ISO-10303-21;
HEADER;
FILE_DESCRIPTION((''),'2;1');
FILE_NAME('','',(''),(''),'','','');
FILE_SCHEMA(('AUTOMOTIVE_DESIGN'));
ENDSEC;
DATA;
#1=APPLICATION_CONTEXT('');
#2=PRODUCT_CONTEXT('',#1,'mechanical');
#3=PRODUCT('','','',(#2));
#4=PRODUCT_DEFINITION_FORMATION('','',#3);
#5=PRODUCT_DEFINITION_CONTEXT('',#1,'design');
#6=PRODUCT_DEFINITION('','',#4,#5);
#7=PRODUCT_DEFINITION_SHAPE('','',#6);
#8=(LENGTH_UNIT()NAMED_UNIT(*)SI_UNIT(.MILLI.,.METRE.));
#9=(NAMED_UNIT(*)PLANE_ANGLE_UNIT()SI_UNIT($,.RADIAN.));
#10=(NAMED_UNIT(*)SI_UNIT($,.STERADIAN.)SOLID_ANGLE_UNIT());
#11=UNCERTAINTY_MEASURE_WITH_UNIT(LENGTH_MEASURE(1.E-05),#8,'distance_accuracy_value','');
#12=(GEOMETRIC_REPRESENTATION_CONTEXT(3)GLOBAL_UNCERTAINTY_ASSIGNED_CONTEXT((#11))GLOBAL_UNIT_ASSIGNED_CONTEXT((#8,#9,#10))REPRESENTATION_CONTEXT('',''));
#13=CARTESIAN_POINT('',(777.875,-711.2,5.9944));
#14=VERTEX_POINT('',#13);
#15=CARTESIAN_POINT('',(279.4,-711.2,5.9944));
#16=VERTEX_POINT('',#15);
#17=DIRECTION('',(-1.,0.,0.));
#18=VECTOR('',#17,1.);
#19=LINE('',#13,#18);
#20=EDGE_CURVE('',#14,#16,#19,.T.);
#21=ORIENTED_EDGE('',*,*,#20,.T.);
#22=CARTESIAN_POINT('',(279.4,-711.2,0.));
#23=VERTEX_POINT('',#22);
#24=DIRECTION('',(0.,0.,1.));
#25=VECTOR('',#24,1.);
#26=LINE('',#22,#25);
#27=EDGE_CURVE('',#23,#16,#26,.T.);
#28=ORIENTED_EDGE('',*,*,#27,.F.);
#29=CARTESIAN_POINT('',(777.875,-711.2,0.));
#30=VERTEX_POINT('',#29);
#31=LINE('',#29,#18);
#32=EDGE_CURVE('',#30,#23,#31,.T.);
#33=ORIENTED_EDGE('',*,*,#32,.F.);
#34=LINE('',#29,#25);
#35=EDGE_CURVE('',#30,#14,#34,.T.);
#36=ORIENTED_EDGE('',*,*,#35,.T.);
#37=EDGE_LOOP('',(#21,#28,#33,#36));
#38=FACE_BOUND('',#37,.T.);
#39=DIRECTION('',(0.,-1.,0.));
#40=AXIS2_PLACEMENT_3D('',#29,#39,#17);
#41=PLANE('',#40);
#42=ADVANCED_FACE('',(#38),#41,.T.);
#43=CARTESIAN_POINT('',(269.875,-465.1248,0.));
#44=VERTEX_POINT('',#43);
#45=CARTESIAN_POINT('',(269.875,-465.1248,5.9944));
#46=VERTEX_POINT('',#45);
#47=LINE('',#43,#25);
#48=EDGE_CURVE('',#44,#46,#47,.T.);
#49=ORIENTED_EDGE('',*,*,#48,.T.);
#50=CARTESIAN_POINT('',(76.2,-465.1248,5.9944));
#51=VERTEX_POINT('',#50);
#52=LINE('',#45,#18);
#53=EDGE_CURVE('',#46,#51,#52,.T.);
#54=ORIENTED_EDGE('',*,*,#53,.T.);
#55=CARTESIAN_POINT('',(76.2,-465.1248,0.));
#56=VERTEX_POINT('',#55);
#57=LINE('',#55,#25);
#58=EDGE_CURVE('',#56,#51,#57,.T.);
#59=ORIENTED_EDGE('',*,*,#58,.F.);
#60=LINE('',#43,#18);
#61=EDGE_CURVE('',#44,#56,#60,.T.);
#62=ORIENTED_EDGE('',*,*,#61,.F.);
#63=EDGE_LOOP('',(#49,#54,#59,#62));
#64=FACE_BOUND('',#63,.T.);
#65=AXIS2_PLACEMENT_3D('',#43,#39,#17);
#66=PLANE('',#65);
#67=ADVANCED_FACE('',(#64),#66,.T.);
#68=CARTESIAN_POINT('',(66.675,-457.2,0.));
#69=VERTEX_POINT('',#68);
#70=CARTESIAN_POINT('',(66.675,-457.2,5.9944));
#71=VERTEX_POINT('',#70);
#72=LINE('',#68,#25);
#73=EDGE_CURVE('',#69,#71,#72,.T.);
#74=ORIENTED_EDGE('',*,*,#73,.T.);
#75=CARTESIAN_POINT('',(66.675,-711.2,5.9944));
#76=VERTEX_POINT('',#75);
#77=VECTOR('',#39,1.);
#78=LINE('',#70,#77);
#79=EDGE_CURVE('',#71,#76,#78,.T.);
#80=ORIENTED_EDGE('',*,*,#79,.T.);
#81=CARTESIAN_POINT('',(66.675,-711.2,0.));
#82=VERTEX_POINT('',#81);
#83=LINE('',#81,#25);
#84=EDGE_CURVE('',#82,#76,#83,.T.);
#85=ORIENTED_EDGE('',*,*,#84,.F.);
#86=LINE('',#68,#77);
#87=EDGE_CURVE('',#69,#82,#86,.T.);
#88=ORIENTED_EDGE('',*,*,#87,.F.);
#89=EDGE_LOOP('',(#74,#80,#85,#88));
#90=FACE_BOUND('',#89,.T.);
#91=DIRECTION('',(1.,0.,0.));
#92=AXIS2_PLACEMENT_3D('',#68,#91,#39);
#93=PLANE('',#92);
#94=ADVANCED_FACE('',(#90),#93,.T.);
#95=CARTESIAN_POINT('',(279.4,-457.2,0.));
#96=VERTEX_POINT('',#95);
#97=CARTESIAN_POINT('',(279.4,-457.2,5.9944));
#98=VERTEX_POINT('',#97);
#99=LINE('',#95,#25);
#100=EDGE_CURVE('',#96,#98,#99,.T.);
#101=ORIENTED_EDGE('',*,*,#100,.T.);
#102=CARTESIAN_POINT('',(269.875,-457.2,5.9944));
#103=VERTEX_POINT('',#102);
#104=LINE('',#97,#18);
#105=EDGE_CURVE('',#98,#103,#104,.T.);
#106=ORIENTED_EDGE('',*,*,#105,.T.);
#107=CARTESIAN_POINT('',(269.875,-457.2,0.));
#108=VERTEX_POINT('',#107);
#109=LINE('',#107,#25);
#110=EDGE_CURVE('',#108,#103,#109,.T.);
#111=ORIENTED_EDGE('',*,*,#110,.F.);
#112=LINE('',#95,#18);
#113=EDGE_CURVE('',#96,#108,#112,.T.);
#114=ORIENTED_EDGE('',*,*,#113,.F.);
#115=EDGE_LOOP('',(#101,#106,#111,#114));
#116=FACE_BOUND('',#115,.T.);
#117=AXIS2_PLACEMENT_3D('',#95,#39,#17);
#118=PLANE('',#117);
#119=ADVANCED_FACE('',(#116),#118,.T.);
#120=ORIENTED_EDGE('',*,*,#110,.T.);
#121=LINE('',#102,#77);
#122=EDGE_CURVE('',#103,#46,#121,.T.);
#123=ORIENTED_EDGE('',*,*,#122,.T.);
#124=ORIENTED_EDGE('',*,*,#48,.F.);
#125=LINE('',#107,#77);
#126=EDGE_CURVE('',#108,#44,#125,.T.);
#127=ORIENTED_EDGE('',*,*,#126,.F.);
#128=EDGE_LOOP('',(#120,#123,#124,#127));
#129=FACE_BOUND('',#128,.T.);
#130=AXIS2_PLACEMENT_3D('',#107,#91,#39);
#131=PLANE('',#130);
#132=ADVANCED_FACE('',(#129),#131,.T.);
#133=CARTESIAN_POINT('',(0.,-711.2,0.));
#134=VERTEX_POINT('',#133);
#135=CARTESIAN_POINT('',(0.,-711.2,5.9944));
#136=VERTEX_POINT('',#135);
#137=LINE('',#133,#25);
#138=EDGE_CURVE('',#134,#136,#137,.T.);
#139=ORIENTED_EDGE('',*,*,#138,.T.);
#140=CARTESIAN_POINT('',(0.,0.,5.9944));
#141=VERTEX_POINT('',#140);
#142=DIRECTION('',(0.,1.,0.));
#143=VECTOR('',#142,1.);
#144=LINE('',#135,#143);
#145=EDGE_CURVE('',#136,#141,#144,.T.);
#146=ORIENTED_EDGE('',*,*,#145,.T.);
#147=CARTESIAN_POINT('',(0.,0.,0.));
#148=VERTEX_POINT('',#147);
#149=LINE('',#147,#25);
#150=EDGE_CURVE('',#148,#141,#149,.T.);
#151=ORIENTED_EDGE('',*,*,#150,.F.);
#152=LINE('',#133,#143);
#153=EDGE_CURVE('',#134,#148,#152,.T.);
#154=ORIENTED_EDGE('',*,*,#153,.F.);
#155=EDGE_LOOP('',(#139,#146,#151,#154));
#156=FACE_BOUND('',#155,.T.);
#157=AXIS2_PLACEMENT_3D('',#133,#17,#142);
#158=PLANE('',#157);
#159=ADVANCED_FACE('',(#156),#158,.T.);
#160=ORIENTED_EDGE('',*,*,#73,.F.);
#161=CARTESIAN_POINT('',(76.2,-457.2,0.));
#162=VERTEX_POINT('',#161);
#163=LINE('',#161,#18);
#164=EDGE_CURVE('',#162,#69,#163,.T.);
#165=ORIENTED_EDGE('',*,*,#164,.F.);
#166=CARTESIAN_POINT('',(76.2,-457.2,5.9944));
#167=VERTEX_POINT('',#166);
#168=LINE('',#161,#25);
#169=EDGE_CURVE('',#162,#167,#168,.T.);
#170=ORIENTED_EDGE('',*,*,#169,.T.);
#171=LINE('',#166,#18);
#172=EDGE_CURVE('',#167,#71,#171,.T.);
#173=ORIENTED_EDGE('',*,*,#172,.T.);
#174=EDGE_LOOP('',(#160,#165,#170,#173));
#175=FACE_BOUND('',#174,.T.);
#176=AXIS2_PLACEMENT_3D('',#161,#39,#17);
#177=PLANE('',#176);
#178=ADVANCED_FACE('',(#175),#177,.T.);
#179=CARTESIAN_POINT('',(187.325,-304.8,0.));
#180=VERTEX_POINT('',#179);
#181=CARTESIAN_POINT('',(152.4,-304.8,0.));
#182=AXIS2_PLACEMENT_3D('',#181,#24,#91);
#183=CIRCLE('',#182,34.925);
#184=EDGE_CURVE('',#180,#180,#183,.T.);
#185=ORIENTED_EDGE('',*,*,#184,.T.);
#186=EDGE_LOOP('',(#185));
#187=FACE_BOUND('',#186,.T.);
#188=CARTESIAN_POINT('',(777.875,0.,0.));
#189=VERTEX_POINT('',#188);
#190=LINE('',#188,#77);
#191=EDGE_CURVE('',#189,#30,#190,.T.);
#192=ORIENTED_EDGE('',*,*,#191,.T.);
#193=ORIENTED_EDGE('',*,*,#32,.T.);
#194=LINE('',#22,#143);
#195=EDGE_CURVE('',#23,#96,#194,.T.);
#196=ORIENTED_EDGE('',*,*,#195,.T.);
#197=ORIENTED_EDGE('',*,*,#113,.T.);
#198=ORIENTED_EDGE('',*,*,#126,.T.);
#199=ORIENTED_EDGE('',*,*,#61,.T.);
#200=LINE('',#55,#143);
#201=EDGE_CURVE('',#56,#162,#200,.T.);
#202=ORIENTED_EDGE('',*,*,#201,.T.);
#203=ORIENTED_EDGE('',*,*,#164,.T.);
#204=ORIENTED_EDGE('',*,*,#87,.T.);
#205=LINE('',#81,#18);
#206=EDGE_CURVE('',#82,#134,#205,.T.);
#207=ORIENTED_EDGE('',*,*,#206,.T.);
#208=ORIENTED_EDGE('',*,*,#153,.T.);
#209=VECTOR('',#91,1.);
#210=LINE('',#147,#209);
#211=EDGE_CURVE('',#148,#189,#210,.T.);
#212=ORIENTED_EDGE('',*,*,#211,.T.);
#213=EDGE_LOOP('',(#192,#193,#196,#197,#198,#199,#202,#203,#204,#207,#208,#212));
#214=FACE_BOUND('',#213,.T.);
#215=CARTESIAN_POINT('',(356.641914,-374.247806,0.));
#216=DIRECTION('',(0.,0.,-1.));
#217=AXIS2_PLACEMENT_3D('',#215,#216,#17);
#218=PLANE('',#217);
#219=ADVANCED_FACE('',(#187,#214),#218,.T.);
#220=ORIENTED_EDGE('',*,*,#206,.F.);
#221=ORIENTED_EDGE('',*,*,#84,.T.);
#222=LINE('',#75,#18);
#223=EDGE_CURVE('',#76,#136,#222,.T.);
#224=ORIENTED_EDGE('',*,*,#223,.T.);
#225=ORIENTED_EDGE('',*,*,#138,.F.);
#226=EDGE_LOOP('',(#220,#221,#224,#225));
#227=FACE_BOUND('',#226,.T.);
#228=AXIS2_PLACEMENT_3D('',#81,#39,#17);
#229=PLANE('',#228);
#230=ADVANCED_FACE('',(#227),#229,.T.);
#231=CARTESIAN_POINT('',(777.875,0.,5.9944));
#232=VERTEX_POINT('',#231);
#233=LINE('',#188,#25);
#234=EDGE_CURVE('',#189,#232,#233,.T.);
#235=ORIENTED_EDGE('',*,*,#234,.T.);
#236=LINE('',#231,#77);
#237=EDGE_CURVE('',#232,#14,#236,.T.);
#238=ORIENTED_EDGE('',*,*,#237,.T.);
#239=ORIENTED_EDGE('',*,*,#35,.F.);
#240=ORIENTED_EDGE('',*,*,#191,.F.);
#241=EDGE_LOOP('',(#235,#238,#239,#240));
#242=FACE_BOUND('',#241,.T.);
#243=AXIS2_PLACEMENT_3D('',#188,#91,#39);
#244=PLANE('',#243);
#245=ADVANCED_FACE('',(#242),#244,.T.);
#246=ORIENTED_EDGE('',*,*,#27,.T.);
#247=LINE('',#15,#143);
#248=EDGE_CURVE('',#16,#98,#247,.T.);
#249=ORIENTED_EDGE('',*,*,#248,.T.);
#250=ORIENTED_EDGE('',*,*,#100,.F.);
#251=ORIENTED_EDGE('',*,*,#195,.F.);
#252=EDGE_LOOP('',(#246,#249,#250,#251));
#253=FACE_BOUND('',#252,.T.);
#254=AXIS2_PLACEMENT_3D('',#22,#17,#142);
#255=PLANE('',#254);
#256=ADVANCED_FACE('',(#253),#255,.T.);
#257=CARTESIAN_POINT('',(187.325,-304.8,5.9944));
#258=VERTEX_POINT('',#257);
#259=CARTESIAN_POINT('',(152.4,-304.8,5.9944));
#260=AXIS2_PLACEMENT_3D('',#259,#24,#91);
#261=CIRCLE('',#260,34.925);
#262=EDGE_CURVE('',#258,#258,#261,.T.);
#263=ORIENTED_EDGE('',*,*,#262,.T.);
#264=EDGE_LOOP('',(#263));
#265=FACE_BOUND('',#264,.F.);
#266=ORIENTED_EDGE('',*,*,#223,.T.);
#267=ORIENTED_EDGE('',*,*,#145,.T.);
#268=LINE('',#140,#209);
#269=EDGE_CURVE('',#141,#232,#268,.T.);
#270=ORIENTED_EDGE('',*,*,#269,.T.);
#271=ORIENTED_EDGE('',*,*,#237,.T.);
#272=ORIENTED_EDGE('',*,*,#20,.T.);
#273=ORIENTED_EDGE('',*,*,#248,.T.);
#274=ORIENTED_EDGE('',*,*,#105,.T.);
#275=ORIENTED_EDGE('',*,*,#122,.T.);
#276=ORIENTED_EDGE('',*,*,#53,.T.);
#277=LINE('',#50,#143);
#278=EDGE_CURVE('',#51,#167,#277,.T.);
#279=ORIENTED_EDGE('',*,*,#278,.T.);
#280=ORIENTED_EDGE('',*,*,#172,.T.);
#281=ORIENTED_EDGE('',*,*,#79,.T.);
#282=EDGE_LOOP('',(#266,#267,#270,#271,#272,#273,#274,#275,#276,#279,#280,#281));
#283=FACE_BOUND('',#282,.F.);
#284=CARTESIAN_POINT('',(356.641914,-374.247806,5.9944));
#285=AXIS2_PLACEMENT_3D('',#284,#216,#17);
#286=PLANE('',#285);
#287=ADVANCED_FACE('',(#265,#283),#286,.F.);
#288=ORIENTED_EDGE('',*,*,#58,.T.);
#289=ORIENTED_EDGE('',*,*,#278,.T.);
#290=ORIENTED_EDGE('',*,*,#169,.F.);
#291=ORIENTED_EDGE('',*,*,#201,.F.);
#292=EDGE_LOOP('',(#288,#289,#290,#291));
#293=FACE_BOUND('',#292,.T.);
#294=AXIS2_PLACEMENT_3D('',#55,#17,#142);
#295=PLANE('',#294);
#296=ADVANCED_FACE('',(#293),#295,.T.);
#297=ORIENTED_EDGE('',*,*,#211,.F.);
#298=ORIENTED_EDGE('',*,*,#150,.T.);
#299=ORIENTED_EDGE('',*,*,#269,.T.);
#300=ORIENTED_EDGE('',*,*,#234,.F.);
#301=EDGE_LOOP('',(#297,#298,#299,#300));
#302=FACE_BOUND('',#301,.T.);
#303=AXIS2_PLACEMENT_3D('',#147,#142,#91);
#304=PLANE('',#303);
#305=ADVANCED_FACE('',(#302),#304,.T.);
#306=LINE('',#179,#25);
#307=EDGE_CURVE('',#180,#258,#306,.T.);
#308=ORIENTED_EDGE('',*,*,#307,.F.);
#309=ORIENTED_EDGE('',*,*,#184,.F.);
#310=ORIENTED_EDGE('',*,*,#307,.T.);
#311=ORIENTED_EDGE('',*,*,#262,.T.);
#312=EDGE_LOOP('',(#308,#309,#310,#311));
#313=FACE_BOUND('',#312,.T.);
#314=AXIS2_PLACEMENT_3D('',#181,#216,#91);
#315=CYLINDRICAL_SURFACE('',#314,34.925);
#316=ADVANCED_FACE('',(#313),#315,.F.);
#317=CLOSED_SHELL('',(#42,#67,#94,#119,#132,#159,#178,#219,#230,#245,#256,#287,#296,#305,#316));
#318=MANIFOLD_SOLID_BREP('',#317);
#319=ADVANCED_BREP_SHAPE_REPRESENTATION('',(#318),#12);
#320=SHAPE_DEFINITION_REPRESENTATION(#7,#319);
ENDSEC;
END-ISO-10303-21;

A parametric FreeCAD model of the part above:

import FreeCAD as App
import Part
import Sketcher
Q = App.Units.Quantity

doc = App.newDocument("Part")
body = doc.addObject("PartDesign::Body", "Body")

# Sketch on XY plane
sketch1 = body.newObject("Sketcher::SketchObject", "Sketch")
sketch1.AttachmentSupport = (doc.getObject("XY_Plane"), [""])
sketch1.MapMode = "FlatFace"
sketch1.addGeometry([
    Part.LineSegment(App.Vector(778, 0, 0), App.Vector(0, 0, 0)),  # 0
    Part.LineSegment(App.Vector(0, 0, 0), App.Vector(0, -711, 0)),  # 1
    Part.LineSegment(App.Vector(0, -711, 0), App.Vector(67, -711, 0)),  # 2
    Part.LineSegment(App.Vector(67, -711, 0), App.Vector(67, -457, 0)),  # 3
    Part.LineSegment(App.Vector(67, -457, 0), App.Vector(76, -457, 0)),  # 4
    Part.LineSegment(App.Vector(76, -457, 0), App.Vector(76, -465, 0)),  # 5
    Part.LineSegment(App.Vector(76, -465, 0), App.Vector(270, -465, 0)),  # 6
    Part.LineSegment(App.Vector(270, -465, 0), App.Vector(270, -457, 0)),  # 7
    Part.LineSegment(App.Vector(270, -457, 0), App.Vector(279, -457, 0)),  # 8
    Part.LineSegment(App.Vector(279, -457, 0), App.Vector(279, -711, 0)),  # 9
    Part.LineSegment(App.Vector(279, -711, 0), App.Vector(778, -711, 0)),  # 10
    Part.LineSegment(App.Vector(778, -711, 0), App.Vector(778, 0, 0)),  # 11
    Part.Circle(App.Vector(152, -305, 0), App.Vector(0, 0, 1), 35),  # 12
], False)
sketch1.addConstraint([
    Sketcher.Constraint("Coincident", 0, 2, 1, 1),
    Sketcher.Constraint("Coincident", 1, 2, 2, 1),
    Sketcher.Constraint("Coincident", 2, 2, 3, 1),
    Sketcher.Constraint("Coincident", 3, 2, 4, 1),
    Sketcher.Constraint("Coincident", 4, 2, 5, 1),
    Sketcher.Constraint("Coincident", 5, 2, 6, 1),
    Sketcher.Constraint("Coincident", 6, 2, 7, 1),
    Sketcher.Constraint("Coincident", 7, 2, 8, 1),
    Sketcher.Constraint("Coincident", 8, 2, 9, 1),
    Sketcher.Constraint("Coincident", 9, 2, 10, 1),
    Sketcher.Constraint("Coincident", 10, 2, 11, 1),
    Sketcher.Constraint("Coincident", 11, 2, 0, 1),
    Sketcher.Constraint("Horizontal", 0),
    Sketcher.Constraint("Vertical", 1),
    Sketcher.Constraint("Horizontal", 2),
    Sketcher.Constraint("Vertical", 3),
    Sketcher.Constraint("Horizontal", 4),
    Sketcher.Constraint("Vertical", 5),
    Sketcher.Constraint("Horizontal", 6),
    Sketcher.Constraint("Vertical", 7),
    Sketcher.Constraint("Horizontal", 8),
    Sketcher.Constraint("Vertical", 9),
    Sketcher.Constraint("Horizontal", 10),
    Sketcher.Constraint("Vertical", 11),
    Sketcher.Constraint("Coincident", 0, 2, -1, 1),
    Sketcher.Constraint("Horizontal", 4, 2, 7, 2),
    Sketcher.Constraint("Horizontal", 2, 2, 9, 2),
    Sketcher.Constraint("Equal", 4, 8),
    Sketcher.Constraint("Diameter", 12, Q("2.75 in")),
    Sketcher.Constraint("DistanceY", 1, 2, 1, 1, Q("28 in")),
    Sketcher.Constraint("DistanceY", 3, 1, 3, 2, Q("10 in")),
    Sketcher.Constraint("DistanceX", -1, 1, 12, 3, Q("6 in")),
    Sketcher.Constraint("DistanceY", 12, 3, -1, 1, Q("12 in")),
    Sketcher.Constraint("DistanceX", -1, 1, 4, 2, Q("3 in")),
    Sketcher.Constraint("DistanceX", -1, 1, 8, 2, Q("11 in")),
    Sketcher.Constraint("DistanceX", 6, 2, 10, 2, Q("20 in")),
    Sketcher.Constraint("DistanceX", 0, 2, 0, 1, Q("30.625 in")),
    Sketcher.Constraint("DistanceY", 5, 2, 5, 1, Q("0.312 in")),
])
pad1 = body.newObject("PartDesign::Pad", "Pad")
pad1.Profile = sketch1
pad1.Length = Q("0.236 in")

doc.recompute()
